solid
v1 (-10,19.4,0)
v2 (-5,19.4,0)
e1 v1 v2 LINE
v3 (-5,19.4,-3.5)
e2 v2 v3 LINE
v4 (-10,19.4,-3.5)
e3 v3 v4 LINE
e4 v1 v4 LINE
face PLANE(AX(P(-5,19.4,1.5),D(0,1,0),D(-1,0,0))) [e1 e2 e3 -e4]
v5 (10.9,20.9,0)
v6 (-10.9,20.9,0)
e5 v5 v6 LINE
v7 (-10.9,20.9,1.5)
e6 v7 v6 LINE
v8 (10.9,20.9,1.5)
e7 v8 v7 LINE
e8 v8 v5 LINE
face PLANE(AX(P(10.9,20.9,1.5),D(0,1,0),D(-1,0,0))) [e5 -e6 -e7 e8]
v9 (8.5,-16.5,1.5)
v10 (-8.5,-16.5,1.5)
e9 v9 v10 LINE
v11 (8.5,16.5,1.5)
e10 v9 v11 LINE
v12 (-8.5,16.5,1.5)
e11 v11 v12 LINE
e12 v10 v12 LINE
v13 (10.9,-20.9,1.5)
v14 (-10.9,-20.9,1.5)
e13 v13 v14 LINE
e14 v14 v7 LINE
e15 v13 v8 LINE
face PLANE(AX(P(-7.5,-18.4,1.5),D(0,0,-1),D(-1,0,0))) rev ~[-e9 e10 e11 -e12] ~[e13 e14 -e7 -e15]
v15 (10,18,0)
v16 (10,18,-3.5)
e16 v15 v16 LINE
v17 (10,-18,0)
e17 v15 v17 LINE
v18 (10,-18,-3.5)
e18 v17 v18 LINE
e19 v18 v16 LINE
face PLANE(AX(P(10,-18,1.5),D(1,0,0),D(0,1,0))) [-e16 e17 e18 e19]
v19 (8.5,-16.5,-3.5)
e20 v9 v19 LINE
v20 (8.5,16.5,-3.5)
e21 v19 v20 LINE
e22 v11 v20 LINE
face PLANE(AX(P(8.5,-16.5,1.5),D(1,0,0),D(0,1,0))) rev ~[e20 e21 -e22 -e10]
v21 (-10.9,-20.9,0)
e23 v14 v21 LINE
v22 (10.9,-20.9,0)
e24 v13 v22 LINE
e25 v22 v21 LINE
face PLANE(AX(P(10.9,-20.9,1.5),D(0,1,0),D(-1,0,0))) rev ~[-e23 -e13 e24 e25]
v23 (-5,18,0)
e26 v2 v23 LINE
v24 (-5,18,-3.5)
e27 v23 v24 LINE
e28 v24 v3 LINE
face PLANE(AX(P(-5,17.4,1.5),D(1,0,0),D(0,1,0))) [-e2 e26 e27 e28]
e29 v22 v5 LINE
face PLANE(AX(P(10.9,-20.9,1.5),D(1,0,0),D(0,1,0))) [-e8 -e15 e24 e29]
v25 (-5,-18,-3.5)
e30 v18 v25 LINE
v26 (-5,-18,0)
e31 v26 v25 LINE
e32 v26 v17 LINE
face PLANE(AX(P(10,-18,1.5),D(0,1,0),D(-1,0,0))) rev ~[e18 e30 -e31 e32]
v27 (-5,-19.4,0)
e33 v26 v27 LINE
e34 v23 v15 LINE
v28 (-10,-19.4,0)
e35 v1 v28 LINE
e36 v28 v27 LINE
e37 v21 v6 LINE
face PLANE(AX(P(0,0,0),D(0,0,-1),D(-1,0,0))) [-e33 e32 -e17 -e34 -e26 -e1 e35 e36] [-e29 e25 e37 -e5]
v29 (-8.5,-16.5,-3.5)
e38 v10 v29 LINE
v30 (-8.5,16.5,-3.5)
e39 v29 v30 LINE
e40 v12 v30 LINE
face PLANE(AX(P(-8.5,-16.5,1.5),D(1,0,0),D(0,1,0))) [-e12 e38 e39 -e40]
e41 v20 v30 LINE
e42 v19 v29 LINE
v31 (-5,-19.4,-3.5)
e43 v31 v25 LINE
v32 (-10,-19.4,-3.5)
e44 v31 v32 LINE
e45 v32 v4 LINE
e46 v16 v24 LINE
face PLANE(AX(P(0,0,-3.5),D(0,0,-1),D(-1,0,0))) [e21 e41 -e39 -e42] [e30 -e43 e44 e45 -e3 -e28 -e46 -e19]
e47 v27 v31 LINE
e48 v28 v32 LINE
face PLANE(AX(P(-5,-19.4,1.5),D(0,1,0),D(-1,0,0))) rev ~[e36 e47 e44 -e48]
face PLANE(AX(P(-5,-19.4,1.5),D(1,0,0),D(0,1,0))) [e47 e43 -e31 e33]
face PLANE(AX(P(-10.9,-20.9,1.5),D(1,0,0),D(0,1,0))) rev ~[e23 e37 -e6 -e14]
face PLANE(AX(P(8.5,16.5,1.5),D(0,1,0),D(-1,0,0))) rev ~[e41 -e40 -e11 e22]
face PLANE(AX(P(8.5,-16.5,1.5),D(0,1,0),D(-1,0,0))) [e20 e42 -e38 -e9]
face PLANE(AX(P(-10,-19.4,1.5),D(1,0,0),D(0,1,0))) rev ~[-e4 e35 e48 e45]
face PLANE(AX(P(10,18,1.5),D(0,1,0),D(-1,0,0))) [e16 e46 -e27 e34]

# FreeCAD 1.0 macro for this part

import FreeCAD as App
import Part
import Sketcher
Q = App.Units.Quantity

doc = App.newDocument("Part")
body = doc.addObject("PartDesign::Body", "Body")

# Sketch on XY plane
sketch1 = body.newObject("Sketcher::SketchObject", "Sketch")
sketch1.AttachmentSupport = (doc.getObject("XY_Plane"), [""])
sketch1.MapMode = "FlatFace"
sketch1.addGeometry(Part.LineSegment(App.Vector(-10, 19.4, 0), App.Vector(-10, 17.4, 0)), False)
sketch1.addGeometry(Part.LineSegment(App.Vector(-10, 17.4, 0), App.Vector(-5, 17.4, 0)), False)
sketch1.addGeometry(Part.LineSegment(App.Vector(-5, 17.4, 0), App.Vector(-5, 19.4, 0)), False)
sketch1.addGeometry(Part.LineSegment(App.Vector(-5, 19.4, 0), App.Vector(-10, 19.4, 0)), False)
sketch1.addConstraint(Sketcher.Constraint("Coincident", 0, 2, 1, 1))
sketch1.addConstraint(Sketcher.Constraint("Coincident", 1, 2, 2, 1))
sketch1.addConstraint(Sketcher.Constraint("Coincident", 2, 2, 3, 1))
sketch1.addConstraint(Sketcher.Constraint("Coincident", 3, 2, 0, 1))
sketch1.addConstraint(Sketcher.Constraint("Vertical", 0))
sketch1.addConstraint(Sketcher.Constraint("Horizontal", 1))
sketch1.addConstraint(Sketcher.Constraint("Vertical", 2))
sketch1.addConstraint(Sketcher.Constraint("Horizontal", 3))
sketch1.addConstraint(Sketcher.Constraint("DistanceX", 1, 1, 1, 2, Q("5 mm")))
sketch1.addConstraint(Sketcher.Constraint("DistanceY", 0, 2, 0, 1, Q("2 mm")))
sketch1.addConstraint(Sketcher.Constraint("DistanceX", 0, 2, -1, 1, Q("10 mm")))
sketch1.addConstraint(Sketcher.Constraint("DistanceY", -1, 1, 0, 2, Q("17.4 mm")))
pad1 = body.newObject("PartDesign::Pad", "Pad")
pad1.Profile = sketch1
pad1.Length = 5
body2 = doc.addObject("PartDesign::Body", "Body001")
body2.AllowCompound = True

# Sketch on XY plane
sketch2 = body2.newObject("Sketcher::SketchObject", "Sketch001")
sketch2.AttachmentSupport = (doc.getObject("XY_Plane001"), [""])
sketch2.MapMode = "FlatFace"
sketch2.addGeometry(Part.LineSegment(App.Vector(-10, -17.4, 0), App.Vector(-10, -19.4, 0)), False)
sketch2.addGeometry(Part.LineSegment(App.Vector(-10, -19.4, 0), App.Vector(-5, -19.4, 0)), False)
sketch2.addGeometry(Part.LineSegment(App.Vector(-5, -19.4, 0), App.Vector(-5, -17.4, 0)), False)
sketch2.addGeometry(Part.LineSegment(App.Vector(-5, -17.4, 0), App.Vector(-10, -17.4, 0)), False)
sketch2.addConstraint(Sketcher.Constraint("Coincident", 0, 2, 1, 1))
sketch2.addConstraint(Sketcher.Constraint("Coincident", 1, 2, 2, 1))
sketch2.addConstraint(Sketcher.Constraint("Coincident", 2, 2, 3, 1))
sketch2.addConstraint(Sketcher.Constraint("Coincident", 3, 2, 0, 1))
sketch2.addConstraint(Sketcher.Constraint("Vertical", 0))
sketch2.addConstraint(Sketcher.Constraint("Horizontal", 1))
sketch2.addConstraint(Sketcher.Constraint("Vertical", 2))
sketch2.addConstraint(Sketcher.Constraint("Horizontal", 3))
sketch2.addConstraint(Sketcher.Constraint("DistanceX", 1, 1, 1, 2, Q("5 mm")))
sketch2.addConstraint(Sketcher.Constraint("DistanceY", 0, 2, 0, 1, Q("2 mm")))
sketch2.addConstraint(Sketcher.Constraint("DistanceX", 0, 2, -1, 1, Q("10 mm")))
sketch2.addConstraint(Sketcher.Constraint("DistanceY", 0, 2, -1, 1, Q("19.4 mm")))
pad2 = body2.newObject("PartDesign::Pad", "Pad001")
pad2.Profile = sketch2
pad2.Length = 5
doc.recompute()

boolean = body2.newObject("PartDesign::Boolean", "Boolean")
boolean.Type = "Fuse"
boolean.addObjects([body])
body3 = doc.addObject("PartDesign::Body", "Body002")
body3.AllowCompound = True
doc.recompute()

body2.Placement = App.Placement(App.Vector(15, 0, 0), App.Rotation(App.Vector(0, 0, 1), 0))
boolean2 = body3.newObject("PartDesign::Boolean", "Boolean001")
boolean2.Type = "Fuse"
boolean2.addObjects([body2])
body4 = doc.addObject("PartDesign::Body", "Body003")

# Sketch on XY plane
sketch3 = body4.newObject("Sketcher::SketchObject", "Sketch002")
sketch3.AttachmentSupport = (doc.getObject("XY_Plane003"), [""])
sketch3.MapMode = "FlatFace"
sketch3.addGeometry(Part.LineSegment(App.Vector(-8, 16, 0), App.Vector(-8, -16, 0)), False)
sketch3.addGeometry(Part.LineSegment(App.Vector(-8, -16, 0), App.Vector(8, -16, 0)), False)
sketch3.addGeometry(Part.LineSegment(App.Vector(8, -16, 0), App.Vector(8, 16, 0)), False)
sketch3.addGeometry(Part.LineSegment(App.Vector(8, 16, 0), App.Vector(-8, 16, 0)), False)
sketch3.addConstraint(Sketcher.Constraint("Coincident", 0, 2, 1, 1))
sketch3.addConstraint(Sketcher.Constraint("Coincident", 1, 2, 2, 1))
sketch3.addConstraint(Sketcher.Constraint("Coincident", 2, 2, 3, 1))
sketch3.addConstraint(Sketcher.Constraint("Coincident", 3, 2, 0, 1))
sketch3.addConstraint(Sketcher.Constraint("Vertical", 0))
sketch3.addConstraint(Sketcher.Constraint("Horizontal", 1))
sketch3.addConstraint(Sketcher.Constraint("Vertical", 2))
sketch3.addConstraint(Sketcher.Constraint("Horizontal", 3))
sketch3.addConstraint(Sketcher.Constraint("Symmetric", 0, 2, 2, 2, -1, 1))
sketch3.addConstraint(Sketcher.Constraint("DistanceX", 1, 1, 1, 2, Q("17 mm")))
sketch3.addConstraint(Sketcher.Constraint("DistanceY", 0, 2, 0, 1, Q("33 mm")))
pad3 = body4.newObject("PartDesign::Pad", "Pad002")
pad3.Profile = sketch3
pad3.Length = 5
body5 = doc.addObject("PartDesign::Body", "Body004")

# Sketch on XY plane
sketch4 = body5.newObject("Sketcher::SketchObject", "Sketch003")
sketch4.AttachmentSupport = (doc.getObject("XY_Plane004"), [""])
sketch4.MapMode = "FlatFace"
sketch4.addGeometry(Part.LineSegment(App.Vector(-10, 18, 0), App.Vector(-10, -18, 0)), False)
sketch4.addGeometry(Part.LineSegment(App.Vector(-10, -18, 0), App.Vector(10, -18, 0)), False)
sketch4.addGeometry(Part.LineSegment(App.Vector(10, -18, 0), App.Vector(10, 18, 0)), False)
sketch4.addGeometry(Part.LineSegment(App.Vector(10, 18, 0), App.Vector(-10, 18, 0)), False)
sketch4.addConstraint(Sketcher.Constraint("Coincident", 0, 2, 1, 1))
sketch4.addConstraint(Sketcher.Constraint("Coincident", 1, 2, 2, 1))
sketch4.addConstraint(Sketcher.Constraint("Coincident", 2, 2, 3, 1))
sketch4.addConstraint(Sketcher.Constraint("Coincident", 3, 2, 0, 1))
sketch4.addConstraint(Sketcher.Constraint("Vertical", 0))
sketch4.addConstraint(Sketcher.Constraint("Horizontal", 1))
sketch4.addConstraint(Sketcher.Constraint("Vertical", 2))
sketch4.addConstraint(Sketcher.Constraint("Horizontal", 3))
sketch4.addConstraint(Sketcher.Constraint("Symmetric", 0, 2, 2, 2, -1, 1))
sketch4.addConstraint(Sketcher.Constraint("DistanceX", 1, 1, 1, 2, Q("20 mm")))
sketch4.addConstraint(Sketcher.Constraint("DistanceY", 0, 2, 0, 1, Q("36 mm")))
pad4 = body5.newObject("PartDesign::Pad", "Pad003")
pad4.Profile = sketch4
pad4.Length = 5
body6 = doc.addObject("PartDesign::Body", "Body005")

# Sketch on XY plane
sketch5 = body6.newObject("Sketcher::SketchObject", "Sketch004")
sketch5.AttachmentSupport = (doc.getObject("XY_Plane005"), [""])
sketch5.MapMode = "FlatFace"
sketch5.addGeometry(Part.LineSegment(App.Vector(-11, 21, 0), App.Vector(-11, -21, 0)), False)
sketch5.addGeometry(Part.LineSegment(App.Vector(-11, -21, 0), App.Vector(11, -21, 0)), False)
sketch5.addGeometry(Part.LineSegment(App.Vector(11, -21, 0), App.Vector(11, 21, 0)), False)
sketch5.addGeometry(Part.LineSegment(App.Vector(11, 21, 0), App.Vector(-11, 21, 0)), False)
sketch5.addConstraint(Sketcher.Constraint("Coincident", 0, 2, 1, 1))
sketch5.addConstraint(Sketcher.Constraint("Coincident", 1, 2, 2, 1))
sketch5.addConstraint(Sketcher.Constraint("Coincident", 2, 2, 3, 1))
sketch5.addConstraint(Sketcher.Constraint("Coincident", 3, 2, 0, 1))
sketch5.addConstraint(Sketcher.Constraint("Vertical", 0))
sketch5.addConstraint(Sketcher.Constraint("Horizontal", 1))
sketch5.addConstraint(Sketcher.Constraint("Vertical", 2))
sketch5.addConstraint(Sketcher.Constraint("Horizontal", 3))
sketch5.addConstraint(Sketcher.Constraint("Symmetric", 0, 2, 2, 2, -1, 1))
sketch5.addConstraint(Sketcher.Constraint("DistanceX", 1, 1, 1, 2, Q("21.8 mm")))
sketch5.addConstraint(Sketcher.Constraint("DistanceY", 0, 2, 0, 1, Q("41.8 mm")))
pad5 = body6.newObject("PartDesign::Pad", "Pad004")
pad5.Profile = sketch5
pad5.Length = 1.5
doc.recompute()

boolean3 = body6.newObject("PartDesign::Boolean", "Boolean002")
boolean3.Type = "Fuse"
boolean3.addObjects([body5])
doc.recompute()

boolean4 = body6.newObject("PartDesign::Boolean", "Boolean003")
boolean4.Type = "Cut"
boolean4.addObjects([body4])
doc.recompute()

boolean5 = body6.newObject("PartDesign::Boolean", "Boolean004")
boolean5.Type = "Fuse"
boolean5.addObjects([body3])
body7 = doc.addObject("PartDesign::Body", "Body006")
doc.recompute()

body6.Placement = App.Placement(App.Vector(0, 0, 1.5), App.Rotation(App.Vector(0, 1, 0), 180))
boolean6 = body7.newObject("PartDesign::Boolean", "Boolean005")
boolean6.Type = "Fuse"
boolean6.addObjects([body6])

doc.recompute()
